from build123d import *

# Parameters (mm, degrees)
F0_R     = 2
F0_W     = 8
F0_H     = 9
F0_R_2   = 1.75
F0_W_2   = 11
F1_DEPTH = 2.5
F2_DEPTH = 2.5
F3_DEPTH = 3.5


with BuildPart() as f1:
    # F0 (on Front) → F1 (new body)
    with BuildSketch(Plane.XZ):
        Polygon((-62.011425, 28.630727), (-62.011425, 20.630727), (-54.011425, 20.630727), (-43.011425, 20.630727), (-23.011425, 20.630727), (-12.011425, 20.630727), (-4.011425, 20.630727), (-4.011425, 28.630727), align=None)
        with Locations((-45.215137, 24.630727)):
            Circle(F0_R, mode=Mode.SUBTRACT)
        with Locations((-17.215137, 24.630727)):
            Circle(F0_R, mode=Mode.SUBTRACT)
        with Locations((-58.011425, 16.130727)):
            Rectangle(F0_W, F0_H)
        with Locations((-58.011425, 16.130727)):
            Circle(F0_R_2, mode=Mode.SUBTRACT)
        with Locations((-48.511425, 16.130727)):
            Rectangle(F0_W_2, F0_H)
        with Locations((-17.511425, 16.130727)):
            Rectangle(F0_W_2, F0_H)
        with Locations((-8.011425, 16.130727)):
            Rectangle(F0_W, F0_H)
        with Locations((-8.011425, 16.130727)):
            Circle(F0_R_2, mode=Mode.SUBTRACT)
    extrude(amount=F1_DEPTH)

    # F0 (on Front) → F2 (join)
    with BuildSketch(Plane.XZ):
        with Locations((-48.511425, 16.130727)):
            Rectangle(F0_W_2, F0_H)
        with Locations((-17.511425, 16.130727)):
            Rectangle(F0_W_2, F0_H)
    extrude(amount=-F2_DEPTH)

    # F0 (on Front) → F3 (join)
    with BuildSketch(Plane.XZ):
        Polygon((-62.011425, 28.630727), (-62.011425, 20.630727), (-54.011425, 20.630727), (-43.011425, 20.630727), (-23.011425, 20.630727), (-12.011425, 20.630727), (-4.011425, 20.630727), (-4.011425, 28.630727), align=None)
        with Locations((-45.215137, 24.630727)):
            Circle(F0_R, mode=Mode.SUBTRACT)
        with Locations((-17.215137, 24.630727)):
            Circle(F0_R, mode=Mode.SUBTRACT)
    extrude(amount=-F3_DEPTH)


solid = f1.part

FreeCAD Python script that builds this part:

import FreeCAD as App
import Part
import Sketcher
Q = App.Units.Quantity

doc = App.newDocument("Part")
params = doc.addObject("Spreadsheet::Sheet", "Params")
for row, (alias, value) in enumerate([
    ("sketch1_diameter", "4 mm"),
    ("sketch1_diameter2", "3.5 mm"),
    ("sketch1_width", "19 mm"),
    ("sketch1_width2", "20 mm"),
    ("sketch1_height", "17 mm"),
    ("pad1_length", "2.5 mm"),
    ("sketch2_width", "11 mm"),
    ("sketch2_height", "9 mm"),
    ("pad2_length", "2.5 mm"),
    ("sketch3_diameter", "4 mm"),
    ("sketch3_width", "58 mm"),
    ("sketch3_height", "8 mm"),
    ("pad3_length", "3.5 mm"),
], start=1):
    params.set(f"A{row}", alias)
    params.set(f"B{row}", "=" + value)
    params.setAlias(f"B{row}", alias)

body = doc.addObject("PartDesign::Body", "Body")

# Sketch on XZ plane
sketch1 = body.newObject("Sketcher::SketchObject", "Sketch")
sketch1.AttachmentSupport = (doc.getObject("XZ_Plane"), [""])
sketch1.MapMode = "FlatFace"
sketch1.addGeometry([
    Part.LineSegment(App.Vector(-62, 28.6, 0), App.Vector(-62, 11.6, 0)),  # 0
    Part.LineSegment(App.Vector(-62, 11.6, 0), App.Vector(-43, 11.6, 0)),  # 1
    Part.LineSegment(App.Vector(-43, 11.6, 0), App.Vector(-43, 20.6, 0)),  # 2
    Part.LineSegment(App.Vector(-43, 20.6, 0), App.Vector(-23, 20.6, 0)),  # 3
    Part.LineSegment(App.Vector(-23, 20.6, 0), App.Vector(-23, 11.6, 0)),  # 4
    Part.LineSegment(App.Vector(-23, 11.6, 0), App.Vector(-4, 11.6, 0)),  # 5
    Part.LineSegment(App.Vector(-4, 11.6, 0), App.Vector(-4, 28.6, 0)),  # 6
    Part.LineSegment(App.Vector(-4, 28.6, 0), App.Vector(-62, 28.6, 0)),  # 7
    Part.Circle(App.Vector(-58, 16.1, 0), App.Vector(0, 0, 1), 1.8),  # 8
    Part.Circle(App.Vector(-8, 16.1, 0), App.Vector(0, 0, 1), 1.8),  # 9
    Part.Circle(App.Vector(-45.2, 24.6, 0), App.Vector(0, 0, 1), 2),  # 10
    Part.Circle(App.Vector(-17.2, 24.6, 0), App.Vector(0, 0, 1), 2),  # 11
], False)
sketch1.addConstraint([
    Sketcher.Constraint("Coincident", 0, 2, 1, 1),
    Sketcher.Constraint("Coincident", 1, 2, 2, 1),
    Sketcher.Constraint("Coincident", 2, 2, 3, 1),
    Sketcher.Constraint("Coincident", 3, 2, 4, 1),
    Sketcher.Constraint("Coincident", 4, 2, 5, 1),
    Sketcher.Constraint("Coincident", 5, 2, 6, 1),
    Sketcher.Constraint("Coincident", 6, 2, 7, 1),
    Sketcher.Constraint("Coincident", 7, 2, 0, 1),
    Sketcher.Constraint("Vertical", 0),
    Sketcher.Constraint("Horizontal", 1),
    Sketcher.Constraint("Vertical", 2),
    Sketcher.Constraint("Horizontal", 3),
    Sketcher.Constraint("Vertical", 4),
    Sketcher.Constraint("Horizontal", 5),
    Sketcher.Constraint("Vertical", 6),
    Sketcher.Constraint("Horizontal", 7),
    Sketcher.Constraint("Equal", 8, 9),
    Sketcher.Constraint("Equal", 10, 11),
    Sketcher.Constraint("Horizontal", 8, 3, 9, 3),
    Sketcher.Constraint("Horizontal", 10, 3, 11, 3),
    Sketcher.Constraint("Horizontal", 1, 2, 4, 2),
    Sketcher.Constraint("Equal", 1, 5),
    Sketcher.Constraint("Diameter", 10, Q("4 mm")),
    Sketcher.Constraint("Diameter", 8, Q("3.5 mm")),
    Sketcher.Constraint("DistanceX", 1, 1, 1, 2, Q("19 mm")),
    Sketcher.Constraint("DistanceX", 3, 1, 3, 2, Q("20 mm")),
    Sketcher.Constraint("DistanceY", 0, 2, 0, 1, Q("17 mm")),
    Sketcher.Constraint("DistanceY", 2, 1, 2, 2, Q("9 mm")),
    Sketcher.Constraint("DistanceX", 8, 3, 9, 3, Q("50 mm")),
    Sketcher.Constraint("DistanceX", 10, 3, 11, 3, Q("28 mm")),
    Sketcher.Constraint("DistanceX", 0, 2, 8, 3, Q("4 mm")),
    Sketcher.Constraint("DistanceY", 0, 2, 10, 3, Q("13 mm")),
    Sketcher.Constraint("DistanceY", 8, 3, 10, 3, Q("8.5 mm")),
    Sketcher.Constraint("DistanceX", 8, 3, 10, 3, Q("12.796288 mm")),
    Sketcher.Constraint("DistanceX", 8, 3, -1, 1, Q("58.011425 mm")),
    Sketcher.Constraint("DistanceY", -1, 1, 8, 3, Q("16.130727 mm")),
])
sketch1.setExpression("Constraints[22]", "Params.sketch1_diameter")
sketch1.setExpression("Constraints[23]", "Params.sketch1_diameter2")
sketch1.setExpression("Constraints[24]", "Params.sketch1_width")
sketch1.setExpression("Constraints[25]", "Params.sketch1_width2")
sketch1.setExpression("Constraints[26]", "Params.sketch1_height")
pad1 = body.newObject("PartDesign::Pad", "Pad")
pad1.Profile = sketch1
pad1.setExpression("Length", "Params.pad1_length")

# Sketch on XZ plane
sketch2 = body.newObject("Sketcher::SketchObject", "Sketch001")
sketch2.AttachmentSupport = (doc.getObject("XZ_Plane"), [""])
sketch2.MapMode = "FlatFace"
sketch2.addGeometry([
    Part.LineSegment(App.Vector(-54, 21, 0), App.Vector(-54, 12, 0)),  # 0
    Part.LineSegment(App.Vector(-54, 12, 0), App.Vector(-43, 12, 0)),  # 1
    Part.LineSegment(App.Vector(-43, 12, 0), App.Vector(-43, 21, 0)),  # 2
    Part.LineSegment(App.Vector(-43, 21, 0), App.Vector(-54, 21, 0)),  # 3
    Part.LineSegment(App.Vector(-23, 21, 0), App.Vector(-23, 12, 0)),  # 4
    Part.LineSegment(App.Vector(-23, 12, 0), App.Vector(-12, 12, 0)),  # 5
    Part.LineSegment(App.Vector(-12, 12, 0), App.Vector(-12, 21, 0)),  # 6
    Part.LineSegment(App.Vector(-12, 21, 0), App.Vector(-23, 21, 0)),  # 7
], False)
sketch2.addConstraint([
    Sketcher.Constraint("Coincident", 0, 2, 1, 1),
    Sketcher.Constraint("Coincident", 1, 2, 2, 1),
    Sketcher.Constraint("Coincident", 2, 2, 3, 1),
    Sketcher.Constraint("Coincident", 3, 2, 0, 1),
    Sketcher.Constraint("Coincident", 4, 2, 5, 1),
    Sketcher.Constraint("Coincident", 5, 2, 6, 1),
    Sketcher.Constraint("Coincident", 6, 2, 7, 1),
    Sketcher.Constraint("Coincident", 7, 2, 4, 1),
    Sketcher.Constraint("Vertical", 0),
    Sketcher.Constraint("Horizontal", 1),
    Sketcher.Constraint("Vertical", 2),
    Sketcher.Constraint("Horizontal", 3),
    Sketcher.Constraint("Vertical", 4),
    Sketcher.Constraint("Horizontal", 5),
    Sketcher.Constraint("Vertical", 6),
    Sketcher.Constraint("Horizontal", 7),
    Sketcher.Constraint("Horizontal", 1, 2, 4, 2),
    Sketcher.Constraint("Horizontal", 3, 2, 6, 2),
    Sketcher.Constraint("Equal", 3, 5),
    Sketcher.Constraint("DistanceX", 1, 1, 1, 2, Q("11 mm")),
    Sketcher.Constraint("DistanceY", 0, 2, 0, 1, Q("9 mm")),
    Sketcher.Constraint("DistanceX", 1, 2, 4, 2, Q("20 mm")),
    Sketcher.Constraint("DistanceX", 0, 2, -1, 1, Q("54.011425 mm")),
    Sketcher.Constraint("DistanceY", -1, 1, 0, 2, Q("11.630727 mm")),
])
sketch2.setExpression("Constraints[19]", "Params.sketch2_width")
sketch2.setExpression("Constraints[20]", "Params.sketch2_height")
pad2 = body.newObject("PartDesign::Pad", "Pad001")
pad2.Profile = sketch2
pad2.setExpression("Length", "Params.pad2_length")
pad2.Reversed = True

# Sketch on XZ plane
sketch3 = body.newObject("Sketcher::SketchObject", "Sketch002")
sketch3.AttachmentSupport = (doc.getObject("XZ_Plane"), [""])
sketch3.MapMode = "FlatFace"
sketch3.addGeometry([
    Part.LineSegment(App.Vector(-62, 28.6, 0), App.Vector(-62, 20.6, 0)),  # 0
    Part.LineSegment(App.Vector(-62, 20.6, 0), App.Vector(-4, 20.6, 0)),  # 1
    Part.LineSegment(App.Vector(-4, 20.6, 0), App.Vector(-4, 28.6, 0)),  # 2
    Part.LineSegment(App.Vector(-4, 28.6, 0), App.Vector(-62, 28.6, 0)),  # 3
    Part.Circle(App.Vector(-45.2, 24.6, 0), App.Vector(0, 0, 1), 2),  # 4
    Part.Circle(App.Vector(-17.2, 24.6, 0), App.Vector(0, 0, 1), 2),  # 5
], False)
sketch3.addConstraint([
    Sketcher.Constraint("Coincident", 0, 2, 1, 1),
    Sketcher.Constraint("Coincident", 1, 2, 2, 1),
    Sketcher.Constraint("Coincident", 2, 2, 3, 1),
    Sketcher.Constraint("Coincident", 3, 2, 0, 1),
    Sketcher.Constraint("Vertical", 0),
    Sketcher.Constraint("Horizontal", 1),
    Sketcher.Constraint("Vertical", 2),
    Sketcher.Constraint("Horizontal", 3),
    Sketcher.Constraint("Equal", 4, 5),
    Sketcher.Constraint("Horizontal", 4, 3, 5, 3),
    Sketcher.Constraint("Diameter", 4, Q("4 mm")),
    Sketcher.Constraint("DistanceX", 1, 1, 1, 2, Q("58 mm")),
    Sketcher.Constraint("DistanceY", 0, 2, 0, 1, Q("8 mm")),
    Sketcher.Constraint("DistanceX", 4, 3, 5, 3, Q("28 mm")),
    Sketcher.Constraint("DistanceY", 0, 2, 4, 3, Q("4 mm")),
    Sketcher.Constraint("DistanceX", 0, 2, 4, 3, Q("16.796288 mm")),
    Sketcher.Constraint("DistanceX", 4, 3, -1, 1, Q("45.215137 mm")),
    Sketcher.Constraint("DistanceY", -1, 1, 4, 3, Q("24.630727 mm")),
])
sketch3.setExpression("Constraints[10]", "Params.sketch3_diameter")
sketch3.setExpression("Constraints[11]", "Params.sketch3_width")
sketch3.setExpression("Constraints[12]", "Params.sketch3_height")
pad3 = body.newObject("PartDesign::Pad", "Pad002")
pad3.Profile = sketch3
pad3.setExpression("Length", "Params.pad3_length")
pad3.Reversed = True

doc.recompute()
